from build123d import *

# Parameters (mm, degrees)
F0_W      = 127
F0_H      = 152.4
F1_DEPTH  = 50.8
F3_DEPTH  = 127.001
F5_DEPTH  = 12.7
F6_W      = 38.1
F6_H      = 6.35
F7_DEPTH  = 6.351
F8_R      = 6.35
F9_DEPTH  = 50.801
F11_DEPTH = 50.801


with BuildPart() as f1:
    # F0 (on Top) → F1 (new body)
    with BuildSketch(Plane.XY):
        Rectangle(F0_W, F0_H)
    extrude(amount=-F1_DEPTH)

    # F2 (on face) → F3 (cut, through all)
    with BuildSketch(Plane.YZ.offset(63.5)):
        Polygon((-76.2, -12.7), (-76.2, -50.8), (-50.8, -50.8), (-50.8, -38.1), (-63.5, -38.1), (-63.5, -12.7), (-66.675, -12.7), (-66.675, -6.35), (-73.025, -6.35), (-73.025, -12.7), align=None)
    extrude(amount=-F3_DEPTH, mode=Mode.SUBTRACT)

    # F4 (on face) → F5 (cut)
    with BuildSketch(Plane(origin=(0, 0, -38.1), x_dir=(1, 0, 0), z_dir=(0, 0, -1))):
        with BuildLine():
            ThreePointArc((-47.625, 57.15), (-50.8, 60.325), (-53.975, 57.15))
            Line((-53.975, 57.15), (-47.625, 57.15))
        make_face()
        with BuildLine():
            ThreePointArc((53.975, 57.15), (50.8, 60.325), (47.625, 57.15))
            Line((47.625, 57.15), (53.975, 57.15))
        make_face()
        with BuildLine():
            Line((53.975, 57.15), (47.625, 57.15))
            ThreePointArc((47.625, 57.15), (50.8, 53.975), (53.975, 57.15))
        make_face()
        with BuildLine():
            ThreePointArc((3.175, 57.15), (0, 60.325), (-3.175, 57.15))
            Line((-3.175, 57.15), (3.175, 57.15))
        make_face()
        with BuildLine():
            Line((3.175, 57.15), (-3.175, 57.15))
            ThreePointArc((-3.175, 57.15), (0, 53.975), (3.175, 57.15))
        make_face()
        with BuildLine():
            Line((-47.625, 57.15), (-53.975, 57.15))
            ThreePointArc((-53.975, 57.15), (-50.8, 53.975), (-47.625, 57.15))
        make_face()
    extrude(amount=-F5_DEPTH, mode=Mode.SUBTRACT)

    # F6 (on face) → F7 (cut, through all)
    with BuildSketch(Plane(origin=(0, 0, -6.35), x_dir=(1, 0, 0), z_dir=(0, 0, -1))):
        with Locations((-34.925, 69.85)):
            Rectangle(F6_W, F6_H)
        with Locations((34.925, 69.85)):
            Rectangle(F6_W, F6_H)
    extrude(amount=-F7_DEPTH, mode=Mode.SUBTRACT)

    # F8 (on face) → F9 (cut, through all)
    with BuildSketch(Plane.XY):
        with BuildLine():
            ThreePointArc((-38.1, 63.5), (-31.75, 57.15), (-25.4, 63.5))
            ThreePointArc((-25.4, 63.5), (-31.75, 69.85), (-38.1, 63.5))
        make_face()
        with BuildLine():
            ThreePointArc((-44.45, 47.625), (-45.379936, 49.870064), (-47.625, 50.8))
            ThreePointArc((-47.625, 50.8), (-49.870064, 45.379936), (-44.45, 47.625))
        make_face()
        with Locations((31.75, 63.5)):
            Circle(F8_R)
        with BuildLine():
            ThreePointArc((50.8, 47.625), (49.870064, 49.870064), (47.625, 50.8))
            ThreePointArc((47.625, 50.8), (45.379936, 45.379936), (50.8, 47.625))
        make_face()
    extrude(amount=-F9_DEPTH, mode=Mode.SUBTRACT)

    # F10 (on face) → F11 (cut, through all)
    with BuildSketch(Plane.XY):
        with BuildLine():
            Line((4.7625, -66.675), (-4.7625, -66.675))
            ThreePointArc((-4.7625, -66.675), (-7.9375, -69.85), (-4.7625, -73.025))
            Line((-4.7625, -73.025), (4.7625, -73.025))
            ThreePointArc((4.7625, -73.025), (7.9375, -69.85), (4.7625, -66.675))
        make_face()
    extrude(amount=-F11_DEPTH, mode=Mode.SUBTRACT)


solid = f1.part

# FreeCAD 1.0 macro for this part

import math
import FreeCAD as App
import Part
import Sketcher
Q = App.Units.Quantity


def add_polygon(sketch, points):
    """Adds a closed chain of lines whose ends are joined by coincident constraints."""
    first, n = sketch.GeometryCount, len(points)
    for a, b in zip(points, points[1:] + points[:1]):
        sketch.addGeometry(Part.LineSegment(App.Vector(*a, 0), App.Vector(*b, 0)), False)
    for i in range(n):
        sketch.addConstraint(Sketcher.Constraint("Coincident", first + i, 2, first + (i + 1) % n, 1))

doc = App.newDocument("Part")
body = doc.addObject("PartDesign::Body", "Body")

sketch1 = doc.addObject("Sketcher::SketchObject", "Sketch")
body.addObject(sketch1)
sketch1.AttachmentSupport = (doc.XY_Plane, [""])
sketch1.MapMode = "FlatFace"
add_polygon(sketch1, [(-63.5, 76.2), (-63.5, -76.2), (63.5, -76.2), (63.5, 76.2)])
sketch1.addConstraint([
    Sketcher.Constraint("Vertical", 0),
    Sketcher.Constraint("Horizontal", 1),
    Sketcher.Constraint("Vertical", 2),
    Sketcher.Constraint("Horizontal", 3),
    Sketcher.Constraint("Symmetric", 0, 2, 2, 2, -1, 1),
    Sketcher.Constraint("DistanceX", 1, 1, 1, 2, Q("5 in")),
    Sketcher.Constraint("DistanceY", 0, 2, 0, 1, Q("6 in")),
])
pad1 = doc.addObject("PartDesign::Pad", "Pad")
body.addObject(pad1)
pad1.Profile = sketch1
pad1.Length = Q("2 in")
pad1.Reversed = True

sketch2 = doc.addObject("Sketcher::SketchObject", "Sketch001")
body.addObject(sketch2)
sketch2.AttachmentSupport = (doc.YZ_Plane, [""])
sketch2.MapMode = "FlatFace"
sketch2.AttachmentOffset = App.Placement(App.Vector(0, 0, 2.5 * 25.4), App.Rotation())
add_polygon(sketch2, [(-76.2, -12.7), (-76.2, -50.8), (-50.8, -50.8), (-50.8, -38.1), (-63.5, -38.1), (-63.5, -12.7), (-66.675, -12.7), (-66.675, -6.35), (-73.025, -6.35), (-73.025, -12.7)])
sketch2.addConstraint([
    Sketcher.Constraint("Vertical", 0),
    Sketcher.Constraint("Horizontal", 1),
    Sketcher.Constraint("Vertical", 2),
    Sketcher.Constraint("Horizontal", 3),
    Sketcher.Constraint("Vertical", 4),
    Sketcher.Constraint("Horizontal", 5),
    Sketcher.Constraint("Vertical", 6),
    Sketcher.Constraint("Horizontal", 7),
    Sketcher.Constraint("Vertical", 8),
    Sketcher.Constraint("Horizontal", 9),
    Sketcher.Constraint("Horizontal", 5, 2, 8, 2),
    Sketcher.Constraint("Equal", 5, 9),
    Sketcher.Constraint("Equal", 3, 2),
    Sketcher.Constraint("Equal", 1, 4),
    Sketcher.Constraint("Equal", 7, 6),
    Sketcher.Constraint("DistanceX", 1, 1, 1, 2, Q("1 in")),
    Sketcher.Constraint("DistanceX", 3, 2, 3, 1, Q("0.5 in")),
    Sketcher.Constraint("DistanceX", 0, 2, -1, 1, Q("3 in")),
    Sketcher.Constraint("DistanceY", 0, 2, -1, 1, Q("2 in")),
    Sketcher.Constraint("DistanceX", 7, 2, 7, 1, Q("0.25 in")),
])
pocket1 = doc.addObject("PartDesign::Pocket", "Pocket")
body.addObject(pocket1)
pocket1.Profile = sketch2
pocket1.Type = "ThroughAll"

sketch3 = doc.addObject("Sketcher::SketchObject", "Sketch002")
body.addObject(sketch3)
sketch3.AttachmentSupport = (doc.XY_Plane, [""])
sketch3.MapMode = "FlatFace"
sketch3.AttachmentOffset = App.Placement(App.Vector(0, 0, -1.5 * 25.4), App.Rotation())
sketch3.addGeometry([
    Part.Circle(App.Vector(-50.8, -57.15, 0), App.Vector(0, 0, 1), 3.175),
    Part.Circle(App.Vector(50.8, -57.15, 0), App.Vector(0, 0, 1), 3.175),
    Part.Circle(App.Vector(0, -57.15, 0), App.Vector(0, 0, 1), 3.175),
], False)
sketch3.addConstraint([
    Sketcher.Constraint("Equal", 0, 1),
    Sketcher.Constraint("Equal", 1, 2),
    Sketcher.Constraint("Symmetric", 0, 3, 1, 3, -2),
    Sketcher.Constraint("PointOnObject", 2, 3, -2),
    Sketcher.Constraint("Horizontal", 1, 3, 2, 3),
    Sketcher.Constraint("Diameter", 0, Q("0.25 in")),
    Sketcher.Constraint("DistanceX", 0, 3, -1, 1, Q("2 in")),
    Sketcher.Constraint("DistanceY", 0, 3, -1, 1, Q("2.25 in")),
])
pocket2 = doc.addObject("PartDesign::Pocket", "Pocket001")
body.addObject(pocket2)
pocket2.Profile = sketch3
pocket2.Length = Q("0.5 in")
pocket2.Reversed = True

sketch4 = doc.addObject("Sketcher::SketchObject", "Sketch003")
body.addObject(sketch4)
sketch4.AttachmentSupport = (doc.XY_Plane, [""])
sketch4.MapMode = "FlatFace"
sketch4.AttachmentOffset = App.Placement(App.Vector(0, 0, -0.25 * 25.4), App.Rotation())
add_polygon(sketch4, [(-53.975, -73.025), (-53.975, -66.675), (-15.875, -66.675), (-15.875, -73.025)])
add_polygon(sketch4, [(15.875, -73.025), (15.875, -66.675), (53.975, -66.675), (53.975, -73.025)])
sketch4.addConstraint([
    Sketcher.Constraint("Vertical", 0),
    Sketcher.Constraint("Horizontal", 1),
    Sketcher.Constraint("Vertical", 2),
    Sketcher.Constraint("Horizontal", 3),
    Sketcher.Constraint("Vertical", 4),
    Sketcher.Constraint("Horizontal", 5),
    Sketcher.Constraint("Vertical", 6),
    Sketcher.Constraint("Horizontal", 7),
    Sketcher.Constraint("Symmetric", 1, 2, 4, 2, -2),
    Sketcher.Constraint("Symmetric", 3, 2, 6, 2, -2),
    Sketcher.Constraint("DistanceX", 1, 1, 1, 2, Q("1.5 in")),
    Sketcher.Constraint("DistanceY", 0, 1, 0, 2, Q("0.25 in")),
    Sketcher.Constraint("DistanceX", 1, 2, 4, 2, Q("1.25 in")),
    Sketcher.Constraint("DistanceY", 0, 2, -1, 1, Q("2.625 in")),
])
pocket3 = doc.addObject("PartDesign::Pocket", "Pocket002")
body.addObject(pocket3)
pocket3.Profile = sketch4
pocket3.Type = "ThroughAll"
pocket3.Reversed = True

sketch5 = doc.addObject("Sketcher::SketchObject", "Sketch004")
body.addObject(sketch5)
sketch5.AttachmentSupport = (doc.XY_Plane, [""])
sketch5.MapMode = "FlatFace"
sketch5.addGeometry([
    Part.Circle(App.Vector(-31.75, 63.5, 0), App.Vector(0, 0, 1), 6.35),
    Part.ArcOfCircle(Part.Circle(App.Vector(-47.625, 47.625, 0), App.Vector(0, 0, 1), 3.175), math.radians(0.000002), math.radians(89.999998)),
    Part.ArcOfCircle(Part.Circle(App.Vector(-47.625, 47.625, 0), App.Vector(0, 0, 1), 3.175), math.radians(90), math.radians(360)),
    Part.Circle(App.Vector(31.75, 63.5, 0), App.Vector(0, 0, 1), 6.35),
    Part.ArcOfCircle(Part.Circle(App.Vector(47.625, 47.625, 0), App.Vector(0, 0, 1), 3.175), math.radians(0.000002), math.radians(89.999998)),
    Part.ArcOfCircle(Part.Circle(App.Vector(47.625, 47.625, 0), App.Vector(0, 0, 1), 3.175), math.radians(90), math.radians(360)),
], False)
sketch5.addConstraint([
    Sketcher.Constraint("Tangent", 1, 1, 2, 2),
    Sketcher.Constraint("Coincident", 2, 1, 1, 2),
    Sketcher.Constraint("Tangent", 4, 1, 5, 2),
    Sketcher.Constraint("Coincident", 5, 1, 4, 2),
    Sketcher.Constraint("Equal", 0, 3),
    Sketcher.Constraint("Equal", 2, 4),
    Sketcher.Constraint("Symmetric", 0, 3, 3, 3, -2),
    Sketcher.Constraint("Symmetric", 1, 3, 4, 3, -2),
    Sketcher.Constraint("Horizontal", 5, 3, 1, 1),
    Sketcher.Constraint("Horizontal", 1, 1, 4, 1),
    Sketcher.Constraint("Vertical", 1, 3, 2, 1),
    Sketcher.Constraint("Vertical", 4, 3, 5, 1),
    Sketcher.Constraint("Diameter", 0, Q("0.5 in")),
    Sketcher.Constraint("DistanceY", -1, 1, 2, 1, Q("2 in")),
    Sketcher.Constraint("DistanceX", -1, 1, 4, 1, Q("2 in")),
    Sketcher.Constraint("Radius", 1, Q("0.125 in")),
    Sketcher.Constraint("DistanceX", 1, 1, 3, 3, Q("3 in")),
    Sketcher.Constraint("DistanceY", -1, 1, 0, 3, Q("2.5 in")),
])
pocket4 = doc.addObject("PartDesign::Pocket", "Pocket003")
body.addObject(pocket4)
pocket4.Profile = sketch5
pocket4.Type = "ThroughAll"

sketch6 = doc.addObject("Sketcher::SketchObject", "Sketch005")
body.addObject(sketch6)
sketch6.AttachmentSupport = (doc.XY_Plane, [""])
sketch6.MapMode = "FlatFace"
sketch6.addGeometry([
    Part.LineSegment(App.Vector(4.7625, -66.675, 0), App.Vector(-4.7625, -66.675, 0)),
    Part.ArcOfCircle(Part.Circle(App.Vector(-4.7625, -69.85, 0), App.Vector(0, 0, 1), 3.175), math.radians(90), math.radians(270)),
    Part.LineSegment(App.Vector(-4.7625, -73.025, 0), App.Vector(4.7625, -73.025, 0)),
    Part.ArcOfCircle(Part.Circle(App.Vector(4.7625, -69.85, 0), App.Vector(0, 0, 1), 3.175), math.radians(-90), math.radians(90)),
], False)
sketch6.addConstraint([
    Sketcher.Constraint("Tangent", 0, 2, 1, 1),
    Sketcher.Constraint("Tangent", 1, 2, 2, 1),
    Sketcher.Constraint("Tangent", 2, 2, 3, 1),
    Sketcher.Constraint("Tangent", 3, 2, 0, 1),
    Sketcher.Constraint("Horizontal", 0),
    Sketcher.Constraint("Horizontal", 2),
    Sketcher.Constraint("Radius", 1, Q("0.125 in")),
    Sketcher.Constraint("DistanceX", 0, 2, 0, 1, Q("0.375 in")),
    Sketcher.Constraint("DistanceY", 1, 3, -1, 1, Q("2.75 in")),
    Sketcher.Constraint("DistanceX", 1, 3, -1, 1, Q("0.1875 in")),
])
pocket5 = doc.addObject("PartDesign::Pocket", "Pocket004")
body.addObject(pocket5)
pocket5.Profile = sketch6
pocket5.Type = "ThroughAll"

doc.recompute()
